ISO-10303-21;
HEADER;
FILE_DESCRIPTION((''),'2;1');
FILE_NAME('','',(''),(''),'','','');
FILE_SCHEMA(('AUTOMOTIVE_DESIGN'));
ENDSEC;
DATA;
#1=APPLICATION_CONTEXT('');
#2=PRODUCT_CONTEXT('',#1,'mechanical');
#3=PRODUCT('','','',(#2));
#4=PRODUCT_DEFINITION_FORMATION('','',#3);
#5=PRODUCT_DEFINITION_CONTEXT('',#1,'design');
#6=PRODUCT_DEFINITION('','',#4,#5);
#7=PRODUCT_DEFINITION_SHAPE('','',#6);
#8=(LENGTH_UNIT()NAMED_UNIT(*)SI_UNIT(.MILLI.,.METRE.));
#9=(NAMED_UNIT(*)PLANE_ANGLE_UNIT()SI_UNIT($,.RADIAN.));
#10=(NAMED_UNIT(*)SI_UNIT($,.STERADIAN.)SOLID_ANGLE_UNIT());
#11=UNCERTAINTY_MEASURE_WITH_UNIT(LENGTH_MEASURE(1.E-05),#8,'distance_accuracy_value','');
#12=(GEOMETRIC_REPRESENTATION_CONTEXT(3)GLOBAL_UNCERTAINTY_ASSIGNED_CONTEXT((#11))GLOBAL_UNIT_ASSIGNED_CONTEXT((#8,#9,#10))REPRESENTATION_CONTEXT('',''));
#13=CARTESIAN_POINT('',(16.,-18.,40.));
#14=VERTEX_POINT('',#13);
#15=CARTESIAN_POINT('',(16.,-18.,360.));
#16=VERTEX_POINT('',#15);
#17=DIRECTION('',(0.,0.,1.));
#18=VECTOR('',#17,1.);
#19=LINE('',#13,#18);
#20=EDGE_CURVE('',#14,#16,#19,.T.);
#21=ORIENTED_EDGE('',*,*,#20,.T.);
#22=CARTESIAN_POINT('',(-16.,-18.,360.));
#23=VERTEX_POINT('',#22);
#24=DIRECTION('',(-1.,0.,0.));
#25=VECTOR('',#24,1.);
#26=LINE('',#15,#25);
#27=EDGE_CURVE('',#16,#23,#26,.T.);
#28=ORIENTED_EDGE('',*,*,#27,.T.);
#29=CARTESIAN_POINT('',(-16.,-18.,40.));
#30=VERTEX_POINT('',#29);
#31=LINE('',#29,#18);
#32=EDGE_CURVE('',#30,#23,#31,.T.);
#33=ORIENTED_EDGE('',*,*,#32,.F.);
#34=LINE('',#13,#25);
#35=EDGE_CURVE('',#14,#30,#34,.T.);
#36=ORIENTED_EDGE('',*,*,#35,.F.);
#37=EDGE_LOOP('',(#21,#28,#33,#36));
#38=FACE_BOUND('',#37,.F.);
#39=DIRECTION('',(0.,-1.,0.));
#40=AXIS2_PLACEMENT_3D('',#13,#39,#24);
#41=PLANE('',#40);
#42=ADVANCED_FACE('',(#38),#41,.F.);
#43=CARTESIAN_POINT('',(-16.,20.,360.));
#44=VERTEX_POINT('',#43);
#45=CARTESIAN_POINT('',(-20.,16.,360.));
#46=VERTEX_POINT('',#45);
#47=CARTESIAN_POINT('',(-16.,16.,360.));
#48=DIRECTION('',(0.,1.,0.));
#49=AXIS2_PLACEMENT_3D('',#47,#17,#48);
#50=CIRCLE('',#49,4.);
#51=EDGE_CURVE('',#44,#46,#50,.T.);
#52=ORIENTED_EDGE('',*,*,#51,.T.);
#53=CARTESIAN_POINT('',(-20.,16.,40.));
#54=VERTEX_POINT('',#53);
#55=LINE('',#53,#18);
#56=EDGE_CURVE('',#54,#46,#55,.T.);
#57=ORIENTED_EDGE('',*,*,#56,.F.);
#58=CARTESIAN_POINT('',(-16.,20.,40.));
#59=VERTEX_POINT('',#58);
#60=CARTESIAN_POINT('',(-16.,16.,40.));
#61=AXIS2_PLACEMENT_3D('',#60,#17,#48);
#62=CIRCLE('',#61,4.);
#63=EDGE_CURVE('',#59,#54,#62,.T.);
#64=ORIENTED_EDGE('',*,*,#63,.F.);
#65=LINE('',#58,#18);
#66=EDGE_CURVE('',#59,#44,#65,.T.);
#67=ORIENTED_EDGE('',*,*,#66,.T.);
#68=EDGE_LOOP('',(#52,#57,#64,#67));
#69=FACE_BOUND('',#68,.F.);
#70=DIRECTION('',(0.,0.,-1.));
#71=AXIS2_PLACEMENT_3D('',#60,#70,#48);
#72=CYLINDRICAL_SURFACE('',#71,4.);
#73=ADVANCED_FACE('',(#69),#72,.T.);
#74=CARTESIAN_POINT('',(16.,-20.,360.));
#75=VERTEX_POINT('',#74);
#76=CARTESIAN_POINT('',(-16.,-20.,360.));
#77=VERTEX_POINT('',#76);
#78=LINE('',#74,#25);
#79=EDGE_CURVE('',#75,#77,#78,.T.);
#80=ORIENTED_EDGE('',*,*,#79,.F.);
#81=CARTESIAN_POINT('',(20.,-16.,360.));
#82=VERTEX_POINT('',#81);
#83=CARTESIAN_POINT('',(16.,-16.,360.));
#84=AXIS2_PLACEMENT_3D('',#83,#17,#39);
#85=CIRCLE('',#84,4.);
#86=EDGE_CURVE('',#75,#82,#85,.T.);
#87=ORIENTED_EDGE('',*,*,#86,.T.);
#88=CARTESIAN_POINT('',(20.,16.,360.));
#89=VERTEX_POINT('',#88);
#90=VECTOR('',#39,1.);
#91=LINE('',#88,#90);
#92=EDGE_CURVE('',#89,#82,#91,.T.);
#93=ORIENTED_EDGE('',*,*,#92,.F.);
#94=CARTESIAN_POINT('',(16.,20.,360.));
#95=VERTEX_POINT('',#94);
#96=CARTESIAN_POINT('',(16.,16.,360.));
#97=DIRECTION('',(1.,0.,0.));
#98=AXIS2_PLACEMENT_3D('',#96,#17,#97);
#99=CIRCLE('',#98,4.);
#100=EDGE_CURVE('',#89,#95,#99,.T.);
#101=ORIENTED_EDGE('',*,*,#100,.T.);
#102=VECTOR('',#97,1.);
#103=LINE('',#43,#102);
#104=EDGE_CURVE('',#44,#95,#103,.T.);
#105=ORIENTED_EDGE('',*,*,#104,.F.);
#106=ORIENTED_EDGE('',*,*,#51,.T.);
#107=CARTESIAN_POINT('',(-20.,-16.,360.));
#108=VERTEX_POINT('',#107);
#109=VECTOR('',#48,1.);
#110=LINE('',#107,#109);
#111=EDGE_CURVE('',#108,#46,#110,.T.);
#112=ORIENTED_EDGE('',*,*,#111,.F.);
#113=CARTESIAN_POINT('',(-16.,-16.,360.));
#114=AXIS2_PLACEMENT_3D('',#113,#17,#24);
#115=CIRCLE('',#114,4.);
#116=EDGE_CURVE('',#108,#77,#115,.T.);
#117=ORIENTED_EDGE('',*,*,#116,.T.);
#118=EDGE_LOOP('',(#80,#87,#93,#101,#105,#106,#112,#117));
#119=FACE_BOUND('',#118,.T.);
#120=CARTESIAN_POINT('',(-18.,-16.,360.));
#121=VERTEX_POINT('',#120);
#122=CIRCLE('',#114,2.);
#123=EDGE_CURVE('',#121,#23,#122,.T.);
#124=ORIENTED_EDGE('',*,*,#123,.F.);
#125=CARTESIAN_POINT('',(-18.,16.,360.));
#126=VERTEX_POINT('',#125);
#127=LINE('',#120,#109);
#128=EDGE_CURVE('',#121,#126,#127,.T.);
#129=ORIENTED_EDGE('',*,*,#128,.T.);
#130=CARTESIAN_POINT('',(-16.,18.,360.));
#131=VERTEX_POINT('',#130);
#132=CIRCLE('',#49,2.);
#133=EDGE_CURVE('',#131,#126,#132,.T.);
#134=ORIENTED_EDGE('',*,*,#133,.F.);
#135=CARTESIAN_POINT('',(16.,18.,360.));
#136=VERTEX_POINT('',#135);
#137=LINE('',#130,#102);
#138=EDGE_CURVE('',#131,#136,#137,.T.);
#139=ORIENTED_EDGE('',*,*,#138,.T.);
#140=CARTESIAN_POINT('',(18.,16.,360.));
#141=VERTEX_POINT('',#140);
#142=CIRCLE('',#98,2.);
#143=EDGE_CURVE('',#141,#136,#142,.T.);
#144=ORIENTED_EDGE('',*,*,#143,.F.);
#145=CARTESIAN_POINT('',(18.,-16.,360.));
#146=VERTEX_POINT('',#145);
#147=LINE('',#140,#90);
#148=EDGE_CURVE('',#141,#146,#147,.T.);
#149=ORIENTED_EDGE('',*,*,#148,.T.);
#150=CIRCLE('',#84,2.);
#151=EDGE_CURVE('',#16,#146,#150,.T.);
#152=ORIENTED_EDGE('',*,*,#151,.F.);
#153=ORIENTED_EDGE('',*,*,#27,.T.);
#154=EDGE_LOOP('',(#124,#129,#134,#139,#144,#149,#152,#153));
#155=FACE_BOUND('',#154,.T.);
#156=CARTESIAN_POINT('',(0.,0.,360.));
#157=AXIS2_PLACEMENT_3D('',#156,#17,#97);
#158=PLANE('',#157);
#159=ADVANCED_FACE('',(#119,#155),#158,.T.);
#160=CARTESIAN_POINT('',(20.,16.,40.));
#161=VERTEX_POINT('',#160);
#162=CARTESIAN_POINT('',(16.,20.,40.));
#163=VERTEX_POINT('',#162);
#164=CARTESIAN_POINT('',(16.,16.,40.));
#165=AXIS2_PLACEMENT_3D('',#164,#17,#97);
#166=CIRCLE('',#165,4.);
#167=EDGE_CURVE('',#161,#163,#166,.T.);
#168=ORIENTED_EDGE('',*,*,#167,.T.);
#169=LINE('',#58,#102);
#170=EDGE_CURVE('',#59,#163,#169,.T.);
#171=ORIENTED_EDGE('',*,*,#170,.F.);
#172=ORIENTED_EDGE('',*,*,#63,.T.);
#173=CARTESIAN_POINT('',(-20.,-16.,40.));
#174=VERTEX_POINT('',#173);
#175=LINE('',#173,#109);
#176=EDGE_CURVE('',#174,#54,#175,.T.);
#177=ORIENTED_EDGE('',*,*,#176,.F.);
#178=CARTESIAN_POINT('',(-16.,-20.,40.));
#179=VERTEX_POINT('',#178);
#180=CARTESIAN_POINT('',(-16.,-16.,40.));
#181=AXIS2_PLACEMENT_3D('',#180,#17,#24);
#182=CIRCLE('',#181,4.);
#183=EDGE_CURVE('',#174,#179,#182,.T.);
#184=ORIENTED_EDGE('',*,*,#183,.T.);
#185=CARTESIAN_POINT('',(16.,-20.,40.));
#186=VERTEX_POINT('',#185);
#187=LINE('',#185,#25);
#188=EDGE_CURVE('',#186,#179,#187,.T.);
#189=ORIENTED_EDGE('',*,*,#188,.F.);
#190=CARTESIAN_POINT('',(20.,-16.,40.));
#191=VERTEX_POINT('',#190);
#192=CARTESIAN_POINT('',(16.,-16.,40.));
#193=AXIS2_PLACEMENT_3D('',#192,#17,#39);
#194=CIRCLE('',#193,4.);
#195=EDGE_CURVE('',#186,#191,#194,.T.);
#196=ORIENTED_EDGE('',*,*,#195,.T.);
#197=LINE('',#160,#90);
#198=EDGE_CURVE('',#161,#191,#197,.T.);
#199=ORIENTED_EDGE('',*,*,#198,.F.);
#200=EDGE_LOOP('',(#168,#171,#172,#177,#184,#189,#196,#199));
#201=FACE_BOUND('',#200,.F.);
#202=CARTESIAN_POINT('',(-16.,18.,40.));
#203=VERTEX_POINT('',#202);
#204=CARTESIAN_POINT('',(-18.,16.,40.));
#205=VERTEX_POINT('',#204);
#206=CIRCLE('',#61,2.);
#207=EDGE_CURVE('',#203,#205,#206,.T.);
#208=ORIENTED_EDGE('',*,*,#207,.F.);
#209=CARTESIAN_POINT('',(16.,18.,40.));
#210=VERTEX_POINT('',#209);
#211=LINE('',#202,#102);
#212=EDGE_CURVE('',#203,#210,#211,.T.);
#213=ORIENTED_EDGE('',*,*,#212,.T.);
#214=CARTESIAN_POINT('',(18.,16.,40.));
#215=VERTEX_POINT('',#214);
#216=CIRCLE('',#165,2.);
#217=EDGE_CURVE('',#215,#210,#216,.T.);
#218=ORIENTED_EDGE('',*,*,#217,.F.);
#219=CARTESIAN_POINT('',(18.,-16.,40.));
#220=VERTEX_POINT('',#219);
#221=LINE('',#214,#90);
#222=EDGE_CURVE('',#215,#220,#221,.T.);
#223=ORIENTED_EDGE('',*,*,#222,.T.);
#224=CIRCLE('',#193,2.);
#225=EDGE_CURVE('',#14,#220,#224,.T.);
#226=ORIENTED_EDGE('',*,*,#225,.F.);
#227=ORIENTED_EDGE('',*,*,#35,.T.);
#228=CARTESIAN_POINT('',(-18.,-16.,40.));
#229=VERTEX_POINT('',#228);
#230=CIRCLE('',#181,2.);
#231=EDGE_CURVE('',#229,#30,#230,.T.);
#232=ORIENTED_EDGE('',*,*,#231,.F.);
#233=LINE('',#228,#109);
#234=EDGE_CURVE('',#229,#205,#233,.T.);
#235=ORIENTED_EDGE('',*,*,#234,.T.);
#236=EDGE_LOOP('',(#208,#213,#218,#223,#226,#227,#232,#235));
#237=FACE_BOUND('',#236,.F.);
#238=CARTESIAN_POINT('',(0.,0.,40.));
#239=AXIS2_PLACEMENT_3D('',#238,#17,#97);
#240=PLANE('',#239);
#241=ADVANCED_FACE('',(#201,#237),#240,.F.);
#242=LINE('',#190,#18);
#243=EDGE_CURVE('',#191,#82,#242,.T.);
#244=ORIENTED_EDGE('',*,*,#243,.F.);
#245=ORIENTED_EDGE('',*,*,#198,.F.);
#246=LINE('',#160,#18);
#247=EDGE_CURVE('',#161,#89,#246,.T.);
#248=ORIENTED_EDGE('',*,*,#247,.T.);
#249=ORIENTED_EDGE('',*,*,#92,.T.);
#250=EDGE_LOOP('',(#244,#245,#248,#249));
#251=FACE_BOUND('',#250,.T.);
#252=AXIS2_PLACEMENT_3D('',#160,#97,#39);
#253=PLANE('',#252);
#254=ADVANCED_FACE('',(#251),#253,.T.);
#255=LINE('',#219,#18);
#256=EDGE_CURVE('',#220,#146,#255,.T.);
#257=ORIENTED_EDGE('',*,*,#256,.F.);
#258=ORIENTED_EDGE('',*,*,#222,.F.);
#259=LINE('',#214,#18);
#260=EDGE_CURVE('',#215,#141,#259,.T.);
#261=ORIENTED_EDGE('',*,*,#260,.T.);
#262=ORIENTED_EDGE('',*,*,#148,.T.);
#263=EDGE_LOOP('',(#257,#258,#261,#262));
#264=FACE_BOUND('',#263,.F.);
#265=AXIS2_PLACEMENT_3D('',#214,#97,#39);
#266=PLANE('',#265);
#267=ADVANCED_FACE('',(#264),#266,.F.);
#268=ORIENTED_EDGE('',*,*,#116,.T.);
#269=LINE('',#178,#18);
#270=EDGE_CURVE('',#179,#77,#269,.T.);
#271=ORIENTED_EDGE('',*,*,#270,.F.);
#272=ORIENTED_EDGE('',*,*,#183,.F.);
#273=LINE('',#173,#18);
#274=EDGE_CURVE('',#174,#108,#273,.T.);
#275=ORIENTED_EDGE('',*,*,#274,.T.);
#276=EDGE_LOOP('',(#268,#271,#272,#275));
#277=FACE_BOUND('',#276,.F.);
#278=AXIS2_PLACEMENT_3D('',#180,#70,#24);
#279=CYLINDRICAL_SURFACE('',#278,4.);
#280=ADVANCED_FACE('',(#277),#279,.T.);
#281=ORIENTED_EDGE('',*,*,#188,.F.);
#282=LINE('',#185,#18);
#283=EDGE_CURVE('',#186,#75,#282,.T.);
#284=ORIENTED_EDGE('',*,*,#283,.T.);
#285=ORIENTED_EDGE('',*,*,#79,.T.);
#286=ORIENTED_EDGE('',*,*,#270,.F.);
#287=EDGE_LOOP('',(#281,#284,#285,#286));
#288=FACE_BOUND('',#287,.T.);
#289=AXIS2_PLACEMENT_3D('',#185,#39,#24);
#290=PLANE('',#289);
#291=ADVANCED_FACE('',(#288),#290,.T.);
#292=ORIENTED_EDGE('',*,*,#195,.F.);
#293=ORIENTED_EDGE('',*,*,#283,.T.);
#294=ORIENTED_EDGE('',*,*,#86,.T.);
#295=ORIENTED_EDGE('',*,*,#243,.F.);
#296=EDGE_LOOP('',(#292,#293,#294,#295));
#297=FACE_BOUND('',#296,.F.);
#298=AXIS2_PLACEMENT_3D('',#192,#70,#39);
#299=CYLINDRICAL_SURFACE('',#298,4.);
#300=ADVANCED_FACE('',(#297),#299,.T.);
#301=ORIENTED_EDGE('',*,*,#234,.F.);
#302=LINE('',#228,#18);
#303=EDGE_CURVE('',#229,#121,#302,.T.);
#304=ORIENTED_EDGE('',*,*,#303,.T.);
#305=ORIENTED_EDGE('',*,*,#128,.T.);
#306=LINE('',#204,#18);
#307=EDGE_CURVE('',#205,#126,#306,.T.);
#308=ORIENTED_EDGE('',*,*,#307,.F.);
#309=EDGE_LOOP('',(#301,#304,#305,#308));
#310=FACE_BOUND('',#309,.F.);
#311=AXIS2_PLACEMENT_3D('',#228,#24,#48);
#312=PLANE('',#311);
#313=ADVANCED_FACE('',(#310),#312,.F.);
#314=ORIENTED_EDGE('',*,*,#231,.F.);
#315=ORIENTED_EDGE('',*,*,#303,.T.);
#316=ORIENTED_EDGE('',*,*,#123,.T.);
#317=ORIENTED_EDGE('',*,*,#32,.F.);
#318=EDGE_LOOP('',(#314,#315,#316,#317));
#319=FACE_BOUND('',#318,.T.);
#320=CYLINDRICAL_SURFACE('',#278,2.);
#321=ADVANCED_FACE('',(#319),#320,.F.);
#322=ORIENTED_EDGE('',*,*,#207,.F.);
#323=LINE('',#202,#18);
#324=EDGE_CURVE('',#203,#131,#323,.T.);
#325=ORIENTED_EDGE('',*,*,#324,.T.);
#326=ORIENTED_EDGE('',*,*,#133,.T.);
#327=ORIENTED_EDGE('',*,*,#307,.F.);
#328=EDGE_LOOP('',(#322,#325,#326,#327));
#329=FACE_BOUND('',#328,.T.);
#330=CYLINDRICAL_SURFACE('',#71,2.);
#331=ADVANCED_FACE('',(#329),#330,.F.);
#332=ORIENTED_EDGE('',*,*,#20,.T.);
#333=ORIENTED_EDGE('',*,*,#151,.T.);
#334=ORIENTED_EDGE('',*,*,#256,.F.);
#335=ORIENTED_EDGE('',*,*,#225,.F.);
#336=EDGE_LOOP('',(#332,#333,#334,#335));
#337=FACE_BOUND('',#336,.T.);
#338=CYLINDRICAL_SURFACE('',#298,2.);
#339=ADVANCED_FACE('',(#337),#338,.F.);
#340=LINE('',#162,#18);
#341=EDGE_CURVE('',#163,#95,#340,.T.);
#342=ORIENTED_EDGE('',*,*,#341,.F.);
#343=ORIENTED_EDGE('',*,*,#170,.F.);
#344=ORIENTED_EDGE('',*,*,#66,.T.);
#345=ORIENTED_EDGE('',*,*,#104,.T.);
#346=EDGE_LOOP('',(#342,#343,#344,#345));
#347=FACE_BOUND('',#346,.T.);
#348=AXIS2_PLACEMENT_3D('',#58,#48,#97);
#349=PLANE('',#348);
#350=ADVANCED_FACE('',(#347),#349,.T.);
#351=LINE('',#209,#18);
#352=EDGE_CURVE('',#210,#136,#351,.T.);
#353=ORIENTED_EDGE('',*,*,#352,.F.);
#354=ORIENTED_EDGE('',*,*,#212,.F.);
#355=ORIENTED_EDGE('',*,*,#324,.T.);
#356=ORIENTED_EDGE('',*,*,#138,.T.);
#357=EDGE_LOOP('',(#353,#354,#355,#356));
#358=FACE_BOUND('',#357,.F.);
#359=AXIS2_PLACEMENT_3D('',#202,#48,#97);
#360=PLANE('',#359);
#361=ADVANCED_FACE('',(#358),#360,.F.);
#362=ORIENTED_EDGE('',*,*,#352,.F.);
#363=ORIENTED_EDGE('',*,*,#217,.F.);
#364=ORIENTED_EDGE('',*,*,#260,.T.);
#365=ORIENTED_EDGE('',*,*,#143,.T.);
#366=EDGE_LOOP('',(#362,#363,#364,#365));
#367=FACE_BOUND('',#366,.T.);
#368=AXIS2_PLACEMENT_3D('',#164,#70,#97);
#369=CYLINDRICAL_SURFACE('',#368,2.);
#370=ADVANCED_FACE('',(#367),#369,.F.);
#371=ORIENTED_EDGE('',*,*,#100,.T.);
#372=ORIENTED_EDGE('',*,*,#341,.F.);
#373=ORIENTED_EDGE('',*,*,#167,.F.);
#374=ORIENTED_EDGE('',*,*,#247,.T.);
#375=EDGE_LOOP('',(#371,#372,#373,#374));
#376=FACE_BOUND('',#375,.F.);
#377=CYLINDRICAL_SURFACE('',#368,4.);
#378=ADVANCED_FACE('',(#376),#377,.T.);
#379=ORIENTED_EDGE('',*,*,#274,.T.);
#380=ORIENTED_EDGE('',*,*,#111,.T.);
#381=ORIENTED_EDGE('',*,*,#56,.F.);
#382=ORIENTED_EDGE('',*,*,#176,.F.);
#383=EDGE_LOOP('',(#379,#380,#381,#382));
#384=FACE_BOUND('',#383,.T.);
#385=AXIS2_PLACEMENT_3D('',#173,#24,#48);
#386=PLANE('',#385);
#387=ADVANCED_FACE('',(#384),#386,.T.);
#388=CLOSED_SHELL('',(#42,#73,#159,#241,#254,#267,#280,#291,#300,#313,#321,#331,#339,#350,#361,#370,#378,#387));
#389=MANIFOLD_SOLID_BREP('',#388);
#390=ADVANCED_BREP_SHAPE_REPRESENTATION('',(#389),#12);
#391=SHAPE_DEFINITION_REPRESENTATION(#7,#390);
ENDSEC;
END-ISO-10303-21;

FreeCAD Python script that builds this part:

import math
import FreeCAD as App
import Part
import Sketcher

V = App.Vector

doc = App.newDocument("Part")
body = doc.addObject("PartDesign::Body", "Body")

# Sketch on XY plane
sketch1 = doc.addObject("Sketcher::SketchObject", "Sketch")
body.addObject(sketch1)
sketch1.AttachmentSupport = (doc.XY_Plane, [""])
sketch1.MapMode = "FlatFace"
sketch1.AttachmentOffset = App.Placement(V(0, 0, 40), App.Rotation())
sketch1.addGeometry([
    Part.LineSegment(V(-20, 16, 0), V(-20, -16, 0)),  # 0
    Part.ArcOfCircle(Part.Circle(V(-16, -16, 0), V(0, 0, 1), 4), math.radians(180), math.radians(270)),  # 1
    Part.LineSegment(V(-16, -20, 0), V(16, -20, 0)),  # 2
    Part.ArcOfCircle(Part.Circle(V(16, -16, 0), V(0, 0, 1), 4), math.radians(-90), math.radians(0)),  # 3
    Part.LineSegment(V(20, -16, 0), V(20, 16, 0)),  # 4
    Part.ArcOfCircle(Part.Circle(V(16, 16, 0), V(0, 0, 1), 4), math.radians(0), math.radians(90)),  # 5
    Part.LineSegment(V(16, 20, 0), V(-16, 20, 0)),  # 6
    Part.ArcOfCircle(Part.Circle(V(-16, 16, 0), V(0, 0, 1), 4), math.radians(90), math.radians(180)),  # 7
    Part.ArcOfCircle(Part.Circle(V(-16, 16, 0), V(0, 0, 1), 2), math.radians(90), math.radians(180)),  # 8
    Part.LineSegment(V(-16, 18, 0), V(16, 18, 0)),  # 9
    Part.ArcOfCircle(Part.Circle(V(16, 16, 0), V(0, 0, 1), 2), math.radians(0), math.radians(90)),  # 10
    Part.LineSegment(V(18, 16, 0), V(18, -16, 0)),  # 11
    Part.ArcOfCircle(Part.Circle(V(16, -16, 0), V(0, 0, 1), 2), math.radians(-90), math.radians(0)),  # 12
    Part.LineSegment(V(16, -18, 0), V(-16, -18, 0)),  # 13
    Part.ArcOfCircle(Part.Circle(V(-16, -16, 0), V(0, 0, 1), 2), math.radians(180), math.radians(270)),  # 14
    Part.LineSegment(V(-18, -16, 0), V(-18, 16, 0)),  # 15
], False)
sketch1.addConstraint([
    Sketcher.Constraint("Tangent", 0, 2, 1, 1),
    Sketcher.Constraint("Tangent", 1, 2, 2, 1),
    Sketcher.Constraint("Tangent", 2, 2, 3, 1),
    Sketcher.Constraint("Tangent", 3, 2, 4, 1),
    Sketcher.Constraint("Tangent", 4, 2, 5, 1),
    Sketcher.Constraint("Tangent", 5, 2, 6, 1),
    Sketcher.Constraint("Tangent", 6, 2, 7, 1),
    Sketcher.Constraint("Tangent", 7, 2, 0, 1),
    Sketcher.Constraint("Tangent", 8, 1, 9, 1),
    Sketcher.Constraint("Tangent", 9, 2, 10, 2),
    Sketcher.Constraint("Tangent", 10, 1, 11, 1),
    Sketcher.Constraint("Tangent", 11, 2, 12, 2),
    Sketcher.Constraint("Tangent", 12, 1, 13, 1),
    Sketcher.Constraint("Tangent", 13, 2, 14, 2),
    Sketcher.Constraint("Tangent", 14, 1, 15, 1),
    Sketcher.Constraint("Tangent", 15, 2, 8, 2),
    Sketcher.Constraint("Vertical", 0),
    Sketcher.Constraint("Horizontal", 2),
    Sketcher.Constraint("Vertical", 4),
    Sketcher.Constraint("Horizontal", 6),
    Sketcher.Constraint("Horizontal", 9),
    Sketcher.Constraint("Vertical", 11),
    Sketcher.Constraint("Horizontal", 13),
    Sketcher.Constraint("Vertical", 15),
    Sketcher.Constraint("Coincident", 8, 3, 7, 3),
    Sketcher.Constraint("Coincident", 10, 3, 5, 3),
    Sketcher.Constraint("Coincident", 12, 3, 3, 3),
    Sketcher.Constraint("Equal", 1, 3),
    Sketcher.Constraint("Equal", 3, 5),
    Sketcher.Constraint("Equal", 5, 7),
    Sketcher.Constraint("Equal", 12, 14),
    Sketcher.Constraint("Symmetric", 1, 3, 5, 3, -1, 1),
    Sketcher.Constraint("Equal", 13, 0),
    Sketcher.Constraint("Radius", 1, 4.0),
    Sketcher.Constraint("Radius", 8, 2.0),
    Sketcher.Constraint("DistanceX", 0, 2, -1, 1, 20.0),
])
pad1 = doc.addObject("PartDesign::Pad", "Pad")
body.addObject(pad1)
pad1.Profile = sketch1
pad1.Length = 320

doc.recompute()
